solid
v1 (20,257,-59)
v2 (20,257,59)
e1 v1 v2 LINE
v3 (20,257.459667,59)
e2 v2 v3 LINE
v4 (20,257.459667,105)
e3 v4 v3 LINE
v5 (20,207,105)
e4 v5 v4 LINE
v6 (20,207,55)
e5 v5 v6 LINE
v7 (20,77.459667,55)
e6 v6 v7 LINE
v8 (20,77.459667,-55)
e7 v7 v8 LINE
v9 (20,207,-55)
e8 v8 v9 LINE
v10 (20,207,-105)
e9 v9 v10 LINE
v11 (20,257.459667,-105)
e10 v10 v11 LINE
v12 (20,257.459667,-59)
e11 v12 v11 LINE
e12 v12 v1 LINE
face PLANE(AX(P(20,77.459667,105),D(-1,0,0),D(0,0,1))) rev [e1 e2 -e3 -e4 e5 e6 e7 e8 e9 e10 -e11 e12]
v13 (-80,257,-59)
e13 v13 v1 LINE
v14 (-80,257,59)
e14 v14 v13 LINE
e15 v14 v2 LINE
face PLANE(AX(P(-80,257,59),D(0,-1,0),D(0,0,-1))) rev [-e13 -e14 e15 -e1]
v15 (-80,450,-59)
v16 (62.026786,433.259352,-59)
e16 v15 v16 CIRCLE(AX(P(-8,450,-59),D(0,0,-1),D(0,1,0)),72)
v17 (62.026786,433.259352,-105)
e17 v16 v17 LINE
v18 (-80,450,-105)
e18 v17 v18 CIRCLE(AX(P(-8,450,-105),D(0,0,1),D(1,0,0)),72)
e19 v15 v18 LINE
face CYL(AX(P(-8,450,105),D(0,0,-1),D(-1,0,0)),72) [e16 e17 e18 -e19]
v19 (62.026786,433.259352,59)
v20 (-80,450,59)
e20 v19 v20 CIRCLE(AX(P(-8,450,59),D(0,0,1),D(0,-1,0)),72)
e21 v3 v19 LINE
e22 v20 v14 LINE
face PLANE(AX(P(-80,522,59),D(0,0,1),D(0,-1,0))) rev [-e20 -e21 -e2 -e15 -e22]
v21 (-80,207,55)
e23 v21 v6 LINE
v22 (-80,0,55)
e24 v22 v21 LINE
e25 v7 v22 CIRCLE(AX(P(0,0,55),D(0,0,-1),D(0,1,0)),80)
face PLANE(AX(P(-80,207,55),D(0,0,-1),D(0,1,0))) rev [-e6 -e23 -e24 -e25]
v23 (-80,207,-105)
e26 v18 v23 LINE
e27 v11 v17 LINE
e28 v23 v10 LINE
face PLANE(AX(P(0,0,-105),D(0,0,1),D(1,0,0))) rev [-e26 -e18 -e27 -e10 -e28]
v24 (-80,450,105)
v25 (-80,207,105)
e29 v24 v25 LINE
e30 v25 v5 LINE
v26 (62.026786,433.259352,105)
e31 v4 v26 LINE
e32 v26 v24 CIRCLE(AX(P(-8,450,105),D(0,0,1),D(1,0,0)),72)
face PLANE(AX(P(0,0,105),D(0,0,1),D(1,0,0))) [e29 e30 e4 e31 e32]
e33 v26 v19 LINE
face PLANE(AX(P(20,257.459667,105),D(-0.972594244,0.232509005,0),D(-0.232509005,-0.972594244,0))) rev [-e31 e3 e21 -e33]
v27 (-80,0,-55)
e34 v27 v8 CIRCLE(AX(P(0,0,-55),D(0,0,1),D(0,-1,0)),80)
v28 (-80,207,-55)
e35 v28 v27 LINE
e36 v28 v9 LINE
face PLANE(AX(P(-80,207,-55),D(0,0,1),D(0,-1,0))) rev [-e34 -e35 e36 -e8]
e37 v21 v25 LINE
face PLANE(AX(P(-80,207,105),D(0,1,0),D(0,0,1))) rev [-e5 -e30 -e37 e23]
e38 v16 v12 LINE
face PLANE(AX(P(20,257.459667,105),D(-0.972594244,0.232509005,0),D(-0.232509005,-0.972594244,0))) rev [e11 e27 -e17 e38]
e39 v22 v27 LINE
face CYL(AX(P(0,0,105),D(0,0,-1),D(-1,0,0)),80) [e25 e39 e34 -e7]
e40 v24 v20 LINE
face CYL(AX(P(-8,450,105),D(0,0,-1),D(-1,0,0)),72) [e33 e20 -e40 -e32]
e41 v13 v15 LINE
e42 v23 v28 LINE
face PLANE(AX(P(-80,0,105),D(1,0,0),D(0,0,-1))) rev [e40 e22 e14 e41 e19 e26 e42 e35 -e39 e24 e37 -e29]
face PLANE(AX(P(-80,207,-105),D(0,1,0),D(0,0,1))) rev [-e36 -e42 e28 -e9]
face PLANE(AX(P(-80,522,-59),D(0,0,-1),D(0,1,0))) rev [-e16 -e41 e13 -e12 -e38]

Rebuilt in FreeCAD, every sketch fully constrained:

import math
import FreeCAD as App
import Part
import Sketcher

V = App.Vector


def add_polygon(sketch, points):
    """Adds a closed chain of lines whose ends are joined by coincident constraints."""
    first, n = sketch.GeometryCount, len(points)
    for a, b in zip(points, points[1:] + points[:1]):
        sketch.addGeometry(Part.LineSegment(App.Vector(*a, 0), App.Vector(*b, 0)), False)
    for i in range(n):
        sketch.addConstraint(Sketcher.Constraint("Coincident", first + i, 2, first + (i + 1) % n, 1))

doc = App.newDocument("Part")
body = doc.addObject("PartDesign::Body", "Body")

sketch1 = body.newObject("Sketcher::SketchObject", "Sketch")
sketch1.AttachmentSupport = (doc.getObject("XY_Plane"), [""])
sketch1.MapMode = "FlatFace"
sketch1.addGeometry([
    Part.LineSegment(V(-80, 450, 0), V(-80, 0, 0)),
    Part.ArcOfCircle(Part.Circle(V(0, 0, 0), V(0, 0, 1), 80), math.radians(180), math.radians(436)),
    Part.LineSegment(V(20, 77, 0), V(20, 257, 0)),
    Part.LineSegment(V(20, 257, 0), V(62, 433, 0)),
    Part.ArcOfCircle(Part.Circle(V(-8, 450, 0), V(0, 0, 1), 72), math.radians(-13), math.radians(180)),
], False)
sketch1.addConstraint([
    Sketcher.Constraint("Tangent", 0, 2, 1, 1),
    Sketcher.Constraint("Coincident", 1, 2, 2, 1),
    Sketcher.Constraint("Coincident", 2, 2, 3, 1),
    Sketcher.Constraint("Tangent", 3, 2, 4, 1),
    Sketcher.Constraint("Tangent", 4, 2, 0, 1),
    Sketcher.Constraint("Vertical", 0),
    Sketcher.Constraint("Vertical", 2),
    Sketcher.Constraint("Coincident", 1, 3, -1, 1),
    Sketcher.Constraint("Radius", 1, 80.0),
    Sketcher.Constraint("Radius", 4, 72.0),
    Sketcher.Constraint("DistanceY", 0, 2, 0, 1, 450.0),
    Sketcher.Constraint("DistanceY", 2, 1, 2, 2, 180.0),
    Sketcher.Constraint("DistanceX", -1, 1, 1, 2, 20.0),
])
pad1 = body.newObject("PartDesign::Pad", "Pad")
pad1.Profile = sketch1
pad1.Length = 210
pad1.Midplane = True

sketch2 = body.newObject("Sketcher::SketchObject", "Sketch001")
sketch2.AttachmentSupport = (doc.getObject("YZ_Plane"), [""])
sketch2.MapMode = "FlatFace"
add_polygon(sketch2, [(522, 59), (257, 59), (257, -59), (522, -59)])
add_polygon(sketch2, [(207, 105), (-80, 105), (-80, 55), (207, 55)])
add_polygon(sketch2, [(207, -55), (-80, -55), (-80, -105), (207, -105)])
sketch2.addConstraint([
    Sketcher.Constraint("Horizontal", 0),
    Sketcher.Constraint("Vertical", 1),
    Sketcher.Constraint("Horizontal", 2),
    Sketcher.Constraint("Vertical", 3),
    Sketcher.Constraint("Horizontal", 4),
    Sketcher.Constraint("Vertical", 5),
    Sketcher.Constraint("Horizontal", 6),
    Sketcher.Constraint("Vertical", 7),
    Sketcher.Constraint("Horizontal", 8),
    Sketcher.Constraint("Vertical", 9),
    Sketcher.Constraint("Horizontal", 10),
    Sketcher.Constraint("Vertical", 11),
    Sketcher.Constraint("Symmetric", 5, 2, 8, 2, -1),
    Sketcher.Constraint("Symmetric", 7, 2, 10, 2, -1),
    Sketcher.Constraint("DistanceX", 0, 2, 0, 1, 265.0),
    Sketcher.Constraint("DistanceX", 4, 2, 4, 1, 287.0),
    Sketcher.Constraint("DistanceY", 1, 2, 1, 1, 118.0),
    Sketcher.Constraint("DistanceY", 5, 2, 5, 1, 50.0),
    Sketcher.Constraint("DistanceX", -1, 1, 0, 2, 257.0),
    Sketcher.Constraint("DistanceY", -1, 1, 0, 2, 59.0),
    Sketcher.Constraint("DistanceX", 4, 2, -1, 1, 80.0),
    Sketcher.Constraint("DistanceY", -1, 1, 4, 2, 105.0),
])
pocket1 = body.newObject("PartDesign::Pocket", "Pocket")
pocket1.Profile = sketch2
pocket1.Type = "ThroughAll"
pocket1.Midplane = True

doc.recompute()
